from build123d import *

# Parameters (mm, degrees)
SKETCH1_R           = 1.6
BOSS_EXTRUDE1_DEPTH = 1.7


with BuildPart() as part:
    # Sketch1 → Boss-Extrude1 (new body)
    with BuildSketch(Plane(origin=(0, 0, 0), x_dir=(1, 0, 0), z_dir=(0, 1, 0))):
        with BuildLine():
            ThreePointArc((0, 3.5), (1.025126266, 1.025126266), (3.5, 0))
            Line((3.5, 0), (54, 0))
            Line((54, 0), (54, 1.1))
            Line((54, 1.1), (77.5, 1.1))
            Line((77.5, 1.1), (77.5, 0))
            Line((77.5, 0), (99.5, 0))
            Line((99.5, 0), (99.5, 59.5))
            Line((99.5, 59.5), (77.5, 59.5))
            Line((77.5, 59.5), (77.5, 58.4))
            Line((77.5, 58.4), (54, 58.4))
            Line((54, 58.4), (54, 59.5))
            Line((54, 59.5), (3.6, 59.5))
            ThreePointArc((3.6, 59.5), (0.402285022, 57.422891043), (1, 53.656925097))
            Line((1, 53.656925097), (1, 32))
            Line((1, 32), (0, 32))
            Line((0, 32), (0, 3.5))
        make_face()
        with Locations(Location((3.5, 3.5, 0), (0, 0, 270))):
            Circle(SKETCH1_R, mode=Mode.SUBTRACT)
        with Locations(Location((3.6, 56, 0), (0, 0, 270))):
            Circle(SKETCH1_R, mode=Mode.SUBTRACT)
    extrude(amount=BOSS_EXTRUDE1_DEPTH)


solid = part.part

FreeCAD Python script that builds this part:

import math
import FreeCAD as App
import Part
import Sketcher

V = App.Vector
Q = App.Units.Quantity

doc = App.newDocument("Part")
params = doc.addObject("Spreadsheet::Sheet", "Params")
for row, (alias, value) in enumerate([
    ("sketch1_diameter", "3.2 mm"),
    ("sketch1_radius", "3.5 mm"),
    ("sketch1_width", "22 mm"),
    ("sketch1_width2", "1 mm"),
    ("sketch1_width3", "50.5 mm"),
    ("pad1_length", "1.7 mm"),
], start=1):
    params.set(f"A{row}", alias)
    params.set(f"B{row}", "=" + value)
    params.setAlias(f"B{row}", alias)

body = doc.addObject("PartDesign::Body", "Body")

# Sketch on XZ plane
sketch1 = body.newObject("Sketcher::SketchObject", "Sketch")
sketch1.AttachmentSupport = (doc.getObject("XZ_Plane"), [""])
sketch1.MapMode = "FlatFace"
sketch1.addGeometry([
    Part.ArcOfCircle(Part.Circle(V(3.5, -3.5, 0), V(0, 0, 1), 3.5), math.radians(90), math.radians(180)),  # 0
    Part.LineSegment(V(3.5, 0, 0), V(54, 0, 0)),  # 1
    Part.LineSegment(V(54, 0, 0), V(54, -1.1, 0)),  # 2
    Part.LineSegment(V(54, -1.1, 0), V(77.5, -1.1, 0)),  # 3
    Part.LineSegment(V(77.5, -1.1, 0), V(77.5, 0, 0)),  # 4
    Part.LineSegment(V(77.5, 0, 0), V(99.5, 0, 0)),  # 5
    Part.LineSegment(V(99.5, 0, 0), V(99.5, -59.5, 0)),  # 6
    Part.LineSegment(V(99.5, -59.5, 0), V(77.5, -59.5, 0)),  # 7
    Part.LineSegment(V(77.5, -59.5, 0), V(77.5, -58.4, 0)),  # 8
    Part.LineSegment(V(77.5, -58.4, 0), V(54, -58.4, 0)),  # 9
    Part.LineSegment(V(54, -58.4, 0), V(54, -59.5, 0)),  # 10
    Part.LineSegment(V(54, -59.5, 0), V(3.6, -59.5, 0)),  # 11
    Part.ArcOfCircle(Part.Circle(V(3.6, -56, 0), V(0, 0, 1), 3.5), math.radians(138), math.radians(270)),  # 12
    Part.LineSegment(V(1, -53.7, 0), V(1, -32, 0)),  # 13
    Part.LineSegment(V(1, -32, 0), V(0, -32, 0)),  # 14
    Part.LineSegment(V(0, -32, 0), V(0, -3.5, 0)),  # 15
    Part.Circle(V(3.5, -3.5, 0), V(0, 0, 1), 1.6),  # 16
    Part.Circle(V(3.6, -56, 0), V(0, 0, 1), 1.6),  # 17
], False)
sketch1.addConstraint([
    Sketcher.Constraint("Tangent", 0, 1, 1, 1),
    Sketcher.Constraint("Coincident", 1, 2, 2, 1),
    Sketcher.Constraint("Coincident", 2, 2, 3, 1),
    Sketcher.Constraint("Coincident", 3, 2, 4, 1),
    Sketcher.Constraint("Coincident", 4, 2, 5, 1),
    Sketcher.Constraint("Coincident", 5, 2, 6, 1),
    Sketcher.Constraint("Coincident", 6, 2, 7, 1),
    Sketcher.Constraint("Coincident", 7, 2, 8, 1),
    Sketcher.Constraint("Coincident", 8, 2, 9, 1),
    Sketcher.Constraint("Coincident", 9, 2, 10, 1),
    Sketcher.Constraint("Coincident", 10, 2, 11, 1),
    Sketcher.Constraint("Tangent", 11, 2, 12, 2),
    Sketcher.Constraint("Coincident", 12, 1, 13, 1),
    Sketcher.Constraint("Coincident", 13, 2, 14, 1),
    Sketcher.Constraint("Coincident", 14, 2, 15, 1),
    Sketcher.Constraint("Tangent", 15, 2, 0, 2),
    Sketcher.Constraint("Horizontal", 1),
    Sketcher.Constraint("Vertical", 2),
    Sketcher.Constraint("Horizontal", 3),
    Sketcher.Constraint("Vertical", 4),
    Sketcher.Constraint("Horizontal", 5),
    Sketcher.Constraint("Vertical", 6),
    Sketcher.Constraint("Horizontal", 7),
    Sketcher.Constraint("Vertical", 8),
    Sketcher.Constraint("Horizontal", 9),
    Sketcher.Constraint("Vertical", 10),
    Sketcher.Constraint("Horizontal", 11),
    Sketcher.Constraint("Vertical", 13),
    Sketcher.Constraint("Horizontal", 14),
    Sketcher.Constraint("Vertical", 15),
    Sketcher.Constraint("Coincident", 16, 3, 0, 3),
    Sketcher.Constraint("Coincident", 17, 3, 12, 3),
    Sketcher.Constraint("Equal", 0, 12),
    Sketcher.Constraint("Equal", 16, 17),
    Sketcher.Constraint("PointOnObject", 0, 1, -1),
    Sketcher.Constraint("PointOnObject", 4, 2, -1),
    Sketcher.Constraint("PointOnObject", 14, 2, -2),
    Sketcher.Constraint("Horizontal", 7, 2, 10, 2),
    Sketcher.Constraint("Vertical", 4, 2, 7, 2),
    Sketcher.Constraint("Vertical", 2, 2, 9, 2),
    Sketcher.Constraint("Equal", 4, 8),
    Sketcher.Constraint("Diameter", 16, Q("3.2 mm")),
    Sketcher.Constraint("Radius", 0, Q("3.5 mm")),
    Sketcher.Constraint("DistanceX", 5, 1, 5, 2, Q("22 mm")),
    Sketcher.Constraint("DistanceX", 14, 2, 14, 1, Q("1 mm")),
    Sketcher.Constraint("DistanceX", 1, 1, 1, 2, Q("50.5 mm")),
    Sketcher.Constraint("DistanceX", 3, 1, 3, 2, Q("23.5 mm")),
    Sketcher.Constraint("DistanceX", 11, 2, 11, 1, Q("50.4 mm")),
    Sketcher.Constraint("DistanceY", 2, 2, 2, 1, Q("1.1 mm")),
    Sketcher.Constraint("DistanceY", 6, 2, 6, 1, Q("59.5 mm")),
    Sketcher.Constraint("DistanceY", 15, 1, 15, 2, Q("28.5 mm")),
])
sketch1.setExpression("Constraints[41]", "Params.sketch1_diameter")
sketch1.setExpression("Constraints[42]", "Params.sketch1_radius")
sketch1.setExpression("Constraints[43]", "Params.sketch1_width")
sketch1.setExpression("Constraints[44]", "Params.sketch1_width2")
sketch1.setExpression("Constraints[45]", "Params.sketch1_width3")
pad1 = body.newObject("PartDesign::Pad", "Pad")
pad1.Profile = sketch1
pad1.setExpression("Length", "Params.pad1_length")
pad1.Reversed = True

doc.recompute()
